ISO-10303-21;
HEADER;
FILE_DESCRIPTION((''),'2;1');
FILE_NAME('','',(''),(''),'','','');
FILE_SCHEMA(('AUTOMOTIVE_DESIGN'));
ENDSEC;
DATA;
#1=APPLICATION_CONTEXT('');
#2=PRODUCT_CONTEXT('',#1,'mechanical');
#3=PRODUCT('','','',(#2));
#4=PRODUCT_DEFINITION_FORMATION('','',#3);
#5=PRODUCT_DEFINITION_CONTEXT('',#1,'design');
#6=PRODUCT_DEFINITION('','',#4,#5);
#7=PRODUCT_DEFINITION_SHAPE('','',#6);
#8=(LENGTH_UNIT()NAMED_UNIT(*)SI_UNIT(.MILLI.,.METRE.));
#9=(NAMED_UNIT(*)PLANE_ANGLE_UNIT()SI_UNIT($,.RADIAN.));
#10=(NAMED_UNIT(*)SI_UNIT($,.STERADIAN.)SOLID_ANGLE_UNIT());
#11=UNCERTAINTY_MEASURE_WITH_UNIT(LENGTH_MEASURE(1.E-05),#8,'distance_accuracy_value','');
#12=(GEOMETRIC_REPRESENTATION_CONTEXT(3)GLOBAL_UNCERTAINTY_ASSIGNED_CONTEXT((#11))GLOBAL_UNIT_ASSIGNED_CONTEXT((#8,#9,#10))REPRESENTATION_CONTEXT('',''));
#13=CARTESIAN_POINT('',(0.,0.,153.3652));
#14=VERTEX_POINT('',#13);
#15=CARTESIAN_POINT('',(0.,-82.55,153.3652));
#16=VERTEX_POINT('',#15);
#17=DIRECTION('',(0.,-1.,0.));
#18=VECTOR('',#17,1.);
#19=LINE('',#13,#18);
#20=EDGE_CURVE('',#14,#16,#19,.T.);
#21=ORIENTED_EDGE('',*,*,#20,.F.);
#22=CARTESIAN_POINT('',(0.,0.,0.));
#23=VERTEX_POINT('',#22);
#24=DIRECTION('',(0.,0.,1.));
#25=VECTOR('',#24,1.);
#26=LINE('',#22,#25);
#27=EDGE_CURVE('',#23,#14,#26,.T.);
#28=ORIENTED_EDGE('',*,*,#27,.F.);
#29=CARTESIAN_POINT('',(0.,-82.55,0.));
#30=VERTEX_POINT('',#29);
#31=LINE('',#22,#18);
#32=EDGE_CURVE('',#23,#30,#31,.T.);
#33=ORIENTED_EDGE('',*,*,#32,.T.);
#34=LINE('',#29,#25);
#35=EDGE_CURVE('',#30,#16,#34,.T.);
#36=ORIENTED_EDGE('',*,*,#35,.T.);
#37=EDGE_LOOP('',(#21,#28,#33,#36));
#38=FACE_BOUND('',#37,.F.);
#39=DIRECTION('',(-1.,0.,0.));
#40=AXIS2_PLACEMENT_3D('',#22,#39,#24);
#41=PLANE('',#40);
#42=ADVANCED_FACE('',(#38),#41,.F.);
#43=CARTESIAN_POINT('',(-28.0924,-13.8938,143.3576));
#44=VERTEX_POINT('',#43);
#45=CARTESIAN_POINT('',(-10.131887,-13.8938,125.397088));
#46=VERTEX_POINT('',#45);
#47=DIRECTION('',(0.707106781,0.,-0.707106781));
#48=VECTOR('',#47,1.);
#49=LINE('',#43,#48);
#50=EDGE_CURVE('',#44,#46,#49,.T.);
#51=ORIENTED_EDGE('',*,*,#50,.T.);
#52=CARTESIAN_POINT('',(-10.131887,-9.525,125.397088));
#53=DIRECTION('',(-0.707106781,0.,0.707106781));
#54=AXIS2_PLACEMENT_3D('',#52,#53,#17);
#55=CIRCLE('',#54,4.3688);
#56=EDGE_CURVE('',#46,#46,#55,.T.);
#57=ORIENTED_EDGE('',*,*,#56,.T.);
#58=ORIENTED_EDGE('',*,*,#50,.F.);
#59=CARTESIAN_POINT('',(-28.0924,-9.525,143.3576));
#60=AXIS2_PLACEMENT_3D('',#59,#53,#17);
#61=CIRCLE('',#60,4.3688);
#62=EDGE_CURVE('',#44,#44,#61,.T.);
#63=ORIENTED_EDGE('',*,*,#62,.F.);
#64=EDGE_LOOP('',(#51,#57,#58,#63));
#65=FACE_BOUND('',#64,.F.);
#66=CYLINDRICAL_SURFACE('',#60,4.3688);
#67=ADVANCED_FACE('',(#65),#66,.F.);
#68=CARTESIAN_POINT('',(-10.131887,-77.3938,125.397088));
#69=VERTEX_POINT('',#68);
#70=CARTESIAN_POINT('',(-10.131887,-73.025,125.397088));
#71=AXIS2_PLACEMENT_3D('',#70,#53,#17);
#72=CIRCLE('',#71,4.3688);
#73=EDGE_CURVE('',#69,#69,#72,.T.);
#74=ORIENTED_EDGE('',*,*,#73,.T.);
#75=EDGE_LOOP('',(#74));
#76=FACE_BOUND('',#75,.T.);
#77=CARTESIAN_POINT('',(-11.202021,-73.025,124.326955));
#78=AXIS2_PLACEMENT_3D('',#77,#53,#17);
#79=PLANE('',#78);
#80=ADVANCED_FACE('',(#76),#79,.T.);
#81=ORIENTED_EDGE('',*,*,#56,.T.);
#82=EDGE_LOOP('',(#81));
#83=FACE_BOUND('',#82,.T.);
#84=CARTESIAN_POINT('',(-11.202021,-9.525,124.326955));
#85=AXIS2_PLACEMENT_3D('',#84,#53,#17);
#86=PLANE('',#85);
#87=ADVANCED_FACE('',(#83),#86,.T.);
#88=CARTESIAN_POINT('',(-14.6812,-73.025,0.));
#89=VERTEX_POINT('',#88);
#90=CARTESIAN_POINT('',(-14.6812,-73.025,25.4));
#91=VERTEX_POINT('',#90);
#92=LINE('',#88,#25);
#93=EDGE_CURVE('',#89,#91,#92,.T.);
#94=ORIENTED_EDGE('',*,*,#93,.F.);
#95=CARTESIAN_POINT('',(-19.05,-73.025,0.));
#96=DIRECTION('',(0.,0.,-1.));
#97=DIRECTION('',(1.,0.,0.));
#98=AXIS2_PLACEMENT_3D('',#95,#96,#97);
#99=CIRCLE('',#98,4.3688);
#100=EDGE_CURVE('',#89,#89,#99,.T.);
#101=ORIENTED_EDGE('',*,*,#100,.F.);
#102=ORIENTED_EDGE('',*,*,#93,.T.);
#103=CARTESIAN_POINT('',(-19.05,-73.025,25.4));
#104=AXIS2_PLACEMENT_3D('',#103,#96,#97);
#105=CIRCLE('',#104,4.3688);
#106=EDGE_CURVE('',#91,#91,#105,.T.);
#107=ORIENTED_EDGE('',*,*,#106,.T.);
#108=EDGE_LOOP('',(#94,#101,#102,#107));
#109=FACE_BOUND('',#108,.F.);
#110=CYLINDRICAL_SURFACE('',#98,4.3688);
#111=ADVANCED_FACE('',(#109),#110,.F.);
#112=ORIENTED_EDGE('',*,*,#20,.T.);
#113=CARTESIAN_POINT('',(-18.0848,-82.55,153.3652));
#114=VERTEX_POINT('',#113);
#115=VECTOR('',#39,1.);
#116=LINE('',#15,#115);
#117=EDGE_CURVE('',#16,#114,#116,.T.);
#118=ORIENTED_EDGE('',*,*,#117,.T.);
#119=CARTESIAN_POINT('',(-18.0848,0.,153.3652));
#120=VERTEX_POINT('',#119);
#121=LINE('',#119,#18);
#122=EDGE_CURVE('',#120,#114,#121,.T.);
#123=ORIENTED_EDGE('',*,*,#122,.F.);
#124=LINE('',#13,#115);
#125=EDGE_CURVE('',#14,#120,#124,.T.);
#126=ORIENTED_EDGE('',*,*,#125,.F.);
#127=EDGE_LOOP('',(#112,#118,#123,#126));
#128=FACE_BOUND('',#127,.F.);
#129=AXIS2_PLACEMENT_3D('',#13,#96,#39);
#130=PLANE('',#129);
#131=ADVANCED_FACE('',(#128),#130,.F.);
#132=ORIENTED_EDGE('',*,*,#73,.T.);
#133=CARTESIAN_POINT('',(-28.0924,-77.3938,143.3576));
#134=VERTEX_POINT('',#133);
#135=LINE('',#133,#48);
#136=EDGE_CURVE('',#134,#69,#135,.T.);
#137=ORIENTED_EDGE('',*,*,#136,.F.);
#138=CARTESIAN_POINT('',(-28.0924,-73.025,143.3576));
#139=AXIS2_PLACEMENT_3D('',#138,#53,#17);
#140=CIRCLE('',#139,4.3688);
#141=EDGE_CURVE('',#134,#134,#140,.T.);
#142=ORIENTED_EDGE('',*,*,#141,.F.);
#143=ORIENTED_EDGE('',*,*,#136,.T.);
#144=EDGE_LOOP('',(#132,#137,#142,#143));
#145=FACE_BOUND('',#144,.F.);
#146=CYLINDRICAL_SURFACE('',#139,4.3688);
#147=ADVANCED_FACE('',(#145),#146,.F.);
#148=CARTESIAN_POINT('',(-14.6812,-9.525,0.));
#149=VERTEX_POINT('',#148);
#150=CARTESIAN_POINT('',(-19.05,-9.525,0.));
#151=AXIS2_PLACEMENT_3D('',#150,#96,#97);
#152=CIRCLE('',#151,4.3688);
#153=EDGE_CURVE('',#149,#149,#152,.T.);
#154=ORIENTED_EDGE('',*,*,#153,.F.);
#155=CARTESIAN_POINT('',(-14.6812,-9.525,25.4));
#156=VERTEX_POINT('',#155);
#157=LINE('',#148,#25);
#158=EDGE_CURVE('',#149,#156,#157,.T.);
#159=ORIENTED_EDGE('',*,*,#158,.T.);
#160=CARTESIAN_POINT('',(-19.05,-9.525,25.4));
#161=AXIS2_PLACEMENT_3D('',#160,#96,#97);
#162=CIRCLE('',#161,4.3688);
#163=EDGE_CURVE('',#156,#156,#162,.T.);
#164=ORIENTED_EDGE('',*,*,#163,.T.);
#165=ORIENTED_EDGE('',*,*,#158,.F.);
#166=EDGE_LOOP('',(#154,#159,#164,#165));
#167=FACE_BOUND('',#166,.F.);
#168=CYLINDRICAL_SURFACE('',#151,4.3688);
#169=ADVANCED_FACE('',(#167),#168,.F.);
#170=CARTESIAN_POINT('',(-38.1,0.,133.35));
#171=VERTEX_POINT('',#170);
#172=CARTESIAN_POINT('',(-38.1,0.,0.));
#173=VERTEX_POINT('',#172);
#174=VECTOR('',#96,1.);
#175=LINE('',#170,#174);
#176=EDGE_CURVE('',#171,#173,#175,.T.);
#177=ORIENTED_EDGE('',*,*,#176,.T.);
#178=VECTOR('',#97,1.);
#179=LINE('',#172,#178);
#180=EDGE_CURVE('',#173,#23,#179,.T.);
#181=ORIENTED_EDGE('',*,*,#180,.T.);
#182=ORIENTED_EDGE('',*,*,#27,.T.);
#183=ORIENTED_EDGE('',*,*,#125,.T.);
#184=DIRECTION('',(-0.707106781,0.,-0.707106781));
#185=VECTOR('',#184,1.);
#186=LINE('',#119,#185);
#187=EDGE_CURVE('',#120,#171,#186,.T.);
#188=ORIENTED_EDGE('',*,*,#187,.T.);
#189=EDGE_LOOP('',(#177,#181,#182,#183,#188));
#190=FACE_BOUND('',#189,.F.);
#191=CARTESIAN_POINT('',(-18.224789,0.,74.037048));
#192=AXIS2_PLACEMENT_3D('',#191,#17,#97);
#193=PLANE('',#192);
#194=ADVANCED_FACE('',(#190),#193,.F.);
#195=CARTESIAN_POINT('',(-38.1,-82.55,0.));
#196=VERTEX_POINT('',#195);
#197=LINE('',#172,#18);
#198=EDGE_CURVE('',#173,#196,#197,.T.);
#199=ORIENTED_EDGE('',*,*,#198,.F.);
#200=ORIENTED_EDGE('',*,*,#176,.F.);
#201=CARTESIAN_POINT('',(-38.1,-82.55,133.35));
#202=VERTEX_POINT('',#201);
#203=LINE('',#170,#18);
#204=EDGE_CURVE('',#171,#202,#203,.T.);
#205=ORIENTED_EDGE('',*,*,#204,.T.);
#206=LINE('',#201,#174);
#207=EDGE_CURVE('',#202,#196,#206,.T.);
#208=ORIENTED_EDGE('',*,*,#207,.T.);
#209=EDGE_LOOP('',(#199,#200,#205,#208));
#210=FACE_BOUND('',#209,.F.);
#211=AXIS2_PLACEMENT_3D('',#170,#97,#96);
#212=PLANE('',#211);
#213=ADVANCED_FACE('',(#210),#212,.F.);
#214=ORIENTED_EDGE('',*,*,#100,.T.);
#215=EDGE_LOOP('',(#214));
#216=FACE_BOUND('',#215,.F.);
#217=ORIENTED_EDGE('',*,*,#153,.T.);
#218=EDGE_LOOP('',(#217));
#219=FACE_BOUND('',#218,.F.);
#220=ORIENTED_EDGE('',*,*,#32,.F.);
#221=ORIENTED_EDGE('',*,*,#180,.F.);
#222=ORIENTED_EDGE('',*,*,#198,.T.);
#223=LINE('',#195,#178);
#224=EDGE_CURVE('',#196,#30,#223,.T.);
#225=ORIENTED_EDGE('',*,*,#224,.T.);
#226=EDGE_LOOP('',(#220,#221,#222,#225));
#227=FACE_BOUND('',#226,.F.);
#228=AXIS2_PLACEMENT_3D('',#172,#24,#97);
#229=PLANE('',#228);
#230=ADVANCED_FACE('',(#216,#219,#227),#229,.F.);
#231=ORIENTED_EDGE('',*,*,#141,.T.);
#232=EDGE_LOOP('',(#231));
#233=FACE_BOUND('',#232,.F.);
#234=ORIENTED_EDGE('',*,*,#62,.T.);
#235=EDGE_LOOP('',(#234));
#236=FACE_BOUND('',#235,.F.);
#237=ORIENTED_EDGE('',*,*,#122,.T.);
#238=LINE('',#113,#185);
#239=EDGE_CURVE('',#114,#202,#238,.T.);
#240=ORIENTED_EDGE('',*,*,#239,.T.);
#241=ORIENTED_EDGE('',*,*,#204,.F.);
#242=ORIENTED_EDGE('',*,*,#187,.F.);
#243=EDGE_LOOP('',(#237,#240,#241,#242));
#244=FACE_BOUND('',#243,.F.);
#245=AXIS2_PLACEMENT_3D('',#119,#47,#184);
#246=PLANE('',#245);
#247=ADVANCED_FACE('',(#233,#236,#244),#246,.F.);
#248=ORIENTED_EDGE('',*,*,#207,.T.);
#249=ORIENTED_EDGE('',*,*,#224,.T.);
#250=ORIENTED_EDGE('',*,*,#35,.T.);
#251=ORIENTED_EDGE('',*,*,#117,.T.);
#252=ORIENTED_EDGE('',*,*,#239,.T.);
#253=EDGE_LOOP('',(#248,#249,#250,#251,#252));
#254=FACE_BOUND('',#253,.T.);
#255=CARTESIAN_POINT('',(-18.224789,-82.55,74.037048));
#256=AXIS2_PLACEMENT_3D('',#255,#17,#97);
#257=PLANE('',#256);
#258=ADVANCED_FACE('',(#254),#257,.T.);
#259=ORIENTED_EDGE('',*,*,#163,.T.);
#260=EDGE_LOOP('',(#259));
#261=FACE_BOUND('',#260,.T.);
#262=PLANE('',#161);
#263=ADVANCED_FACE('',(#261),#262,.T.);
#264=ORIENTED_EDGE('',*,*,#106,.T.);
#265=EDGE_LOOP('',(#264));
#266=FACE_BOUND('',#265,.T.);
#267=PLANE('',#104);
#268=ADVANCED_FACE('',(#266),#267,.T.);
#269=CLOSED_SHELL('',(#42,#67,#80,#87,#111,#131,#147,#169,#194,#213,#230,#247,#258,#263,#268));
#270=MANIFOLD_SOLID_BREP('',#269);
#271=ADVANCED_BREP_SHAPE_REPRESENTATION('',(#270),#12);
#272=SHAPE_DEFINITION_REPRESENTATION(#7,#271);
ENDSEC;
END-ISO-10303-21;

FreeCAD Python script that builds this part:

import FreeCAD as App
import Part
import Sketcher
from FreeCAD import Vector
Q = App.Units.Quantity

doc = App.newDocument("Part")
params = doc.addObject("Spreadsheet::Sheet", "Params")
for row, (alias, value) in enumerate([
    ("sketch1_width", "1.5 in"),
    ("sketch1_height", "5.25 in"),
    ("sketch1_width2", "0.712 in"),
    ("pad1_length", "3.25 in"),
    ("sketch2_diameter", "0.344 in"),
    ("pocket1_length", "1 in"),
    ("sketch3_diameter", "0.344 in"),
    ("pocket2_length", "1 in"),
], start=1):
    params.set(f"A{row}", alias)
    params.set(f"B{row}", "=" + value)
    params.setAlias(f"B{row}", alias)

body = doc.addObject("PartDesign::Body", "Body")

sketch1 = body.newObject("Sketcher::SketchObject", "Sketch")
sketch1.AttachmentSupport = (doc.getObject("XZ_Plane"), [""])
sketch1.MapMode = "FlatFace"
sketch1.addGeometry([
    Part.LineSegment(Vector(-38.1, 0, 0), Vector(0, 0, 0)),
    Part.LineSegment(Vector(0, 0, 0), Vector(0, 153.3652, 0)),
    Part.LineSegment(Vector(0, 153.3652, 0), Vector(-18.0848, 153.3652, 0)),
    Part.LineSegment(Vector(-18.0848, 153.3652, 0), Vector(-38.1, 133.35, 0)),
    Part.LineSegment(Vector(-38.1, 133.35, 0), Vector(-38.1, 0, 0)),
], False)
sketch1.addConstraint([
    Sketcher.Constraint("Coincident", 0, 2, 1, 1),
    Sketcher.Constraint("Coincident", 1, 2, 2, 1),
    Sketcher.Constraint("Coincident", 2, 2, 3, 1),
    Sketcher.Constraint("Coincident", 3, 2, 4, 1),
    Sketcher.Constraint("Coincident", 4, 2, 0, 1),
    Sketcher.Constraint("Horizontal", 0),
    Sketcher.Constraint("Vertical", 1),
    Sketcher.Constraint("Horizontal", 2),
    Sketcher.Constraint("Vertical", 4),
    Sketcher.Constraint("Coincident", 0, 2, -1, 1),
    Sketcher.Constraint("DistanceX", 0, 1, 0, 2, Q("1.5 in")),
    Sketcher.Constraint("Angle", 3, Q("-135 deg")),
    Sketcher.Constraint("DistanceY", 4, 2, 4, 1, Q("5.25 in")),
    Sketcher.Constraint("DistanceX", 2, 2, 2, 1, Q("0.712 in")),
])
sketch1.setExpression("Constraints[10]", "Params.sketch1_width")
sketch1.setExpression("Constraints[12]", "Params.sketch1_height")
sketch1.setExpression("Constraints[13]", "Params.sketch1_width2")
pad1 = body.newObject("PartDesign::Pad", "Pad")
pad1.Profile = sketch1
pad1.setExpression("Length", "Params.pad1_length")

sketch2 = body.newObject("Sketcher::SketchObject", "Sketch001")
sketch2.AttachmentSupport = (doc.getObject("XY_Plane"), [""])
sketch2.MapMode = "FlatFace"
sketch2.addGeometry([
    Part.Circle(Vector(-19.05, -9.525, 0), Vector(0, 0, 1), 4.3688),
    Part.Circle(Vector(-19.05, -73.025, 0), Vector(0, 0, 1), 4.3688),
], False)
sketch2.addConstraint([
    Sketcher.Constraint("Equal", 0, 1),
    Sketcher.Constraint("Vertical", 0, 3, 1, 3),
    Sketcher.Constraint("Diameter", 0, Q("0.344 in")),
    Sketcher.Constraint("DistanceY", 1, 3, 0, 3, Q("2.5 in")),
    Sketcher.Constraint("DistanceX", 0, 3, -1, 1, Q("0.75 in")),
    Sketcher.Constraint("DistanceY", 0, 3, -1, 1, Q("0.375 in")),
])
sketch2.setExpression("Constraints[2]", "Params.sketch2_diameter")
pocket1 = body.newObject("PartDesign::Pocket", "Pocket")
pocket1.Profile = sketch2
pocket1.setExpression("Length", "Params.pocket1_length")
pocket1.Reversed = True

sketch3 = body.newObject("Sketcher::SketchObject", "Sketch002")
sketch3.Placement = App.Placement(Vector(-85.725, 0, 85.725), App.Rotation(Vector(0, -1, 0), Vector(0.707106781, 0, 0.707106781), Vector(-0.707106781, 0, 0.707106781), "ZXY"))
sketch3.addGeometry([
    Part.Circle(Vector(73.025, 81.504805, 0), Vector(0, 0, 1), 4.3688),
    Part.Circle(Vector(9.525, 81.504805, 0), Vector(0, 0, 1), 4.3688),
], False)
sketch3.addConstraint([
    Sketcher.Constraint("Equal", 0, 1),
    Sketcher.Constraint("Horizontal", 0, 3, 1, 3),
    Sketcher.Constraint("Diameter", 0, Q("0.344 in")),
    Sketcher.Constraint("DistanceX", 1, 3, 0, 3, Q("2.5 in")),
    Sketcher.Constraint("DistanceX", -1, 1, 0, 3, Q("2.875 in")),
    Sketcher.Constraint("DistanceY", -1, 1, 0, 3, Q("81.504805 mm")),
])
sketch3.setExpression("Constraints[2]", "Params.sketch3_diameter")
pocket2 = body.newObject("PartDesign::Pocket", "Pocket001")
pocket2.Profile = sketch3
pocket2.setExpression("Length", "Params.pocket2_length")

doc.recompute()
